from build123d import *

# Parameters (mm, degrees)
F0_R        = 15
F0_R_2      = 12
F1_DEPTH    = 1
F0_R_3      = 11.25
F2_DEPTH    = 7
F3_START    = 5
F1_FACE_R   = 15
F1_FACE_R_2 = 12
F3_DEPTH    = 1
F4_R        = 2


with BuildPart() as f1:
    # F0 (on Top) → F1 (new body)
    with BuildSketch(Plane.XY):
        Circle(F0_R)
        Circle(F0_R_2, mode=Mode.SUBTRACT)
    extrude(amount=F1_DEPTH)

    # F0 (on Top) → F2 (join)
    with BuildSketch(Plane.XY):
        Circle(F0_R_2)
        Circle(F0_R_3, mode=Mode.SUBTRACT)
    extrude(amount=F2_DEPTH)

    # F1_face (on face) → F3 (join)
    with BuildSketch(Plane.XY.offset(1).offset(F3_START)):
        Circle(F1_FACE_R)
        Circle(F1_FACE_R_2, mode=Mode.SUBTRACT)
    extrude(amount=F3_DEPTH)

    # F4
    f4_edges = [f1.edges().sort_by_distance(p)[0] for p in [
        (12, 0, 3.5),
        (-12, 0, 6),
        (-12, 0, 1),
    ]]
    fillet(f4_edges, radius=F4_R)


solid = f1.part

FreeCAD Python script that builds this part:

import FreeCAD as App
import Part
import Sketcher
from FreeCAD import Vector


def edges_at(feature, points):
    """Names of the edges that pass closest to the given points."""
    edges = feature.Shape.Edges
    near = lambda p: min(range(len(edges)), key=lambda i: edges[i].distToShape(Part.Vertex(*p))[0])
    return sorted({f"Edge{near(p) + 1}" for p in points})

doc = App.newDocument("Part")
body = doc.addObject("PartDesign::Body", "Body")

sketch1 = body.newObject("Sketcher::SketchObject", "Sketch")
sketch1.AttachmentSupport = (doc.getObject("XY_Plane"), [""])
sketch1.MapMode = "FlatFace"
sketch1.addGeometry(Part.Circle(Vector(0, 0, 0), Vector(0, 0, 1), 15), False)
sketch1.addGeometry(Part.Circle(Vector(0, 0, 0), Vector(0, 0, 1), 12), False)
sketch1.addConstraint(Sketcher.Constraint("Coincident", 0, 3, -1, 1))
sketch1.addConstraint(Sketcher.Constraint("Coincident", 1, 3, -1, 1))
sketch1.addConstraint(Sketcher.Constraint("Diameter", 0, 30.0))
sketch1.addConstraint(Sketcher.Constraint("Diameter", 1, 24.0))
pad1 = body.newObject("PartDesign::Pad", "Pad")
pad1.Profile = sketch1
pad1.Length = 1

sketch2 = body.newObject("Sketcher::SketchObject", "Sketch001")
sketch2.AttachmentSupport = (doc.getObject("XY_Plane"), [""])
sketch2.MapMode = "FlatFace"
sketch2.addGeometry(Part.Circle(Vector(0, 0, 0), Vector(0, 0, 1), 12), False)
sketch2.addGeometry(Part.Circle(Vector(0, 0, 0), Vector(0, 0, 1), 11), False)
sketch2.addConstraint(Sketcher.Constraint("Coincident", 0, 3, -1, 1))
sketch2.addConstraint(Sketcher.Constraint("Coincident", 1, 3, -1, 1))
sketch2.addConstraint(Sketcher.Constraint("Diameter", 0, 24.0))
sketch2.addConstraint(Sketcher.Constraint("Diameter", 1, 22.5))
pad2 = body.newObject("PartDesign::Pad", "Pad001")
pad2.Profile = sketch2
pad2.Length = 7

sketch3 = body.newObject("Sketcher::SketchObject", "Sketch002")
sketch3.AttachmentSupport = (doc.getObject("XY_Plane"), [""])
sketch3.MapMode = "FlatFace"
sketch3.AttachmentOffset = App.Placement(Vector(0, 0, 6), App.Rotation())
sketch3.addGeometry(Part.Circle(Vector(0, 0, 0), Vector(0, 0, 1), 15), False)
sketch3.addGeometry(Part.Circle(Vector(0, 0, 0), Vector(0, 0, 1), 12), False)
sketch3.addConstraint(Sketcher.Constraint("Coincident", 0, 3, -1, 1))
sketch3.addConstraint(Sketcher.Constraint("Coincident", 1, 3, -1, 1))
sketch3.addConstraint(Sketcher.Constraint("Diameter", 0, 30.0))
sketch3.addConstraint(Sketcher.Constraint("Diameter", 1, 24.0))
pad3 = body.newObject("PartDesign::Pad", "Pad002")
pad3.Profile = sketch3
pad3.Length = 1
doc.recompute()

fillet = body.newObject("PartDesign::Fillet", "Fillet")
fillet.Base = (pad3, edges_at(pad3, [(12, 0, 3.5), (-12, 0, 6), (-12, 0, 1)]))
fillet.Radius = 2

doc.recompute()
